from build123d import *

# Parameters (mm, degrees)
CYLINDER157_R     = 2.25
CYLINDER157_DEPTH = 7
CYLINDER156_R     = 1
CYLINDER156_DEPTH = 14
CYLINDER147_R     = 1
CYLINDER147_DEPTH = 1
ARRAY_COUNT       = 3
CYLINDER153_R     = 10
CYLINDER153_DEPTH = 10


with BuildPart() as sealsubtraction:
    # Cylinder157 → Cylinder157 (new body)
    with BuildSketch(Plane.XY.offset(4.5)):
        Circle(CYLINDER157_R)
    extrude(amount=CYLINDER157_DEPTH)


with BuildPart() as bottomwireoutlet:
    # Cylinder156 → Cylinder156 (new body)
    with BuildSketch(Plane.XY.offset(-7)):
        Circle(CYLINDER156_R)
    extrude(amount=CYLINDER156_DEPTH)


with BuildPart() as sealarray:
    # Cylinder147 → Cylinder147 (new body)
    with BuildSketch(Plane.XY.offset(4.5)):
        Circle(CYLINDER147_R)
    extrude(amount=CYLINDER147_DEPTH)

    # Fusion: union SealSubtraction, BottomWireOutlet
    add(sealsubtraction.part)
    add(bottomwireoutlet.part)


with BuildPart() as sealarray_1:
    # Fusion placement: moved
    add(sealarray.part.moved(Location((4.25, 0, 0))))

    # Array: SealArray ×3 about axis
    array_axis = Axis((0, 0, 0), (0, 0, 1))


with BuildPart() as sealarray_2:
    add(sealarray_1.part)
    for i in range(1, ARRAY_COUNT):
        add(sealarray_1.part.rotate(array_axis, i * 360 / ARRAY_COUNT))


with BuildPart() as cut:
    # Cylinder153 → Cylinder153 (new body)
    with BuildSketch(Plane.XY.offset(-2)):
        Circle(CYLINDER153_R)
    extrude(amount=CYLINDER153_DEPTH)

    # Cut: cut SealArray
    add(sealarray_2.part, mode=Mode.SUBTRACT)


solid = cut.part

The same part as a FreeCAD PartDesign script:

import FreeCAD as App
import Part
import Sketcher

V = App.Vector

doc = App.newDocument("Part")
body = doc.addObject("PartDesign::Body", "Body")

# Sketch on XY plane
sketch1 = doc.addObject("Sketcher::SketchObject", "Sketch")
body.addObject(sketch1)
sketch1.AttachmentSupport = (doc.XY_Plane, [""])
sketch1.MapMode = "FlatFace"
sketch1.AttachmentOffset = App.Placement(V(0, 0, 4.5), App.Rotation())
sketch1.addGeometry(Part.Circle(V(0, 0, 0), V(0, 0, 1), 2.2), False)
sketch1.addConstraint(Sketcher.Constraint("Coincident", 0, 3, -1, 1))
sketch1.addConstraint(Sketcher.Constraint("Diameter", 0, 4.5))
pad1 = doc.addObject("PartDesign::Pad", "Pad")
body.addObject(pad1)
pad1.Profile = sketch1
pad1.Length = 7
body2 = doc.addObject("PartDesign::Body", "Body001")

# Sketch on XY plane
sketch2 = doc.addObject("Sketcher::SketchObject", "Sketch001")
body2.addObject(sketch2)
sketch2.AttachmentSupport = (doc.getObject("XY_Plane001"), [""])
sketch2.MapMode = "FlatFace"
sketch2.AttachmentOffset = App.Placement(V(0, 0, -7), App.Rotation())
sketch2.addGeometry(Part.Circle(V(0, 0, 0), V(0, 0, 1), 1), False)
sketch2.addConstraint(Sketcher.Constraint("Coincident", 0, 3, -1, 1))
sketch2.addConstraint(Sketcher.Constraint("Diameter", 0, 2.0))
pad2 = doc.addObject("PartDesign::Pad", "Pad001")
body2.addObject(pad2)
pad2.Profile = sketch2
pad2.Length = 14
body3 = doc.addObject("PartDesign::Body", "Body002")

# Sketch on XY plane
sketch3 = doc.addObject("Sketcher::SketchObject", "Sketch002")
body3.addObject(sketch3)
sketch3.AttachmentSupport = (doc.getObject("XY_Plane002"), [""])
sketch3.MapMode = "FlatFace"
sketch3.AttachmentOffset = App.Placement(V(0, 0, 4.5), App.Rotation())
sketch3.addGeometry(Part.Circle(V(0, 0, 0), V(0, 0, 1), 1), False)
sketch3.addConstraint(Sketcher.Constraint("Coincident", 0, 3, -1, 1))
sketch3.addConstraint(Sketcher.Constraint("Diameter", 0, 2.0))
pad3 = doc.addObject("PartDesign::Pad", "Pad002")
body3.addObject(pad3)
pad3.Profile = sketch3
pad3.Length = 1
doc.recompute()

boolean = doc.addObject("PartDesign::Boolean", "Boolean")
body3.addObject(boolean)
boolean.Type = "Fuse"
boolean.addObjects([body])
doc.recompute()

boolean2 = doc.addObject("PartDesign::Boolean", "Boolean001")
body3.addObject(boolean2)
boolean2.Type = "Fuse"
boolean2.addObjects([body2])
body4 = doc.addObject("PartDesign::Body", "Body003")
doc.recompute()

body3.Placement = App.Placement(V(4.25, 0, 0), App.Rotation(V(0, 0, 1), 0))
boolean3 = doc.addObject("PartDesign::Boolean", "Boolean002")
body4.addObject(boolean3)
boolean3.Type = "Fuse"
boolean3.addObjects([body3])
body5 = doc.addObject("PartDesign::Body", "Body004")
body5.AllowCompound = True
doc.recompute()

body5.BaseFeature = body4
doc.recompute()

body6 = doc.addObject("PartDesign::Body", "Body005")
body6.BaseFeature = body4
body6.Placement = App.Placement(V(0, 0, 0), App.Rotation(V(0, 0, 1), 120))
boolean4 = doc.addObject("PartDesign::Boolean", "Boolean003")
body5.addObject(boolean4)
boolean4.Type = "Fuse"
boolean4.addObjects([body6])
doc.recompute()

body4.Placement = App.Placement(V(0, 0, 0), App.Rotation(V(0, 0, 1), 240))
boolean5 = doc.addObject("PartDesign::Boolean", "Boolean004")
body5.addObject(boolean5)
boolean5.Type = "Fuse"
boolean5.addObjects([body4])
body7 = doc.addObject("PartDesign::Body", "Body006")

# Sketch on XY plane
sketch4 = doc.addObject("Sketcher::SketchObject", "Sketch003")
body7.addObject(sketch4)
sketch4.AttachmentSupport = (doc.getObject("XY_Plane006"), [""])
sketch4.MapMode = "FlatFace"
sketch4.AttachmentOffset = App.Placement(V(0, 0, -2), App.Rotation())
sketch4.addGeometry(Part.Circle(V(0, 0, 0), V(0, 0, 1), 10), False)
sketch4.addConstraint(Sketcher.Constraint("Coincident", 0, 3, -1, 1))
sketch4.addConstraint(Sketcher.Constraint("Diameter", 0, 20.0))
pad4 = doc.addObject("PartDesign::Pad", "Pad003")
body7.addObject(pad4)
pad4.Profile = sketch4
pad4.Length = 10
doc.recompute()

boolean6 = doc.addObject("PartDesign::Boolean", "Boolean005")
body7.addObject(boolean6)
boolean6.Type = "Cut"
boolean6.addObjects([body5])

doc.recompute()
